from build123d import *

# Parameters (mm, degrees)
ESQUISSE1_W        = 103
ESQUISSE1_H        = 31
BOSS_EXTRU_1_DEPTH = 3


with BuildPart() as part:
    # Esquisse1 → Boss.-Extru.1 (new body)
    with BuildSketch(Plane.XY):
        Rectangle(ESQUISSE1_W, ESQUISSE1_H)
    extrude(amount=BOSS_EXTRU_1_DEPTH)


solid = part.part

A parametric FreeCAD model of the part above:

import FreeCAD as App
import Part
import Sketcher
Q = App.Units.Quantity

doc = App.newDocument("Part")
body = doc.addObject("PartDesign::Body", "Body")

# Sketch on XY plane
sketch1 = body.newObject("Sketcher::SketchObject", "Sketch")
sketch1.AttachmentSupport = (doc.getObject("XY_Plane"), [""])
sketch1.MapMode = "FlatFace"
sketch1.addGeometry([
    Part.LineSegment(App.Vector(-52, 16, 0), App.Vector(-52, -16, 0)),
    Part.LineSegment(App.Vector(-52, -16, 0), App.Vector(52, -16, 0)),
    Part.LineSegment(App.Vector(52, -16, 0), App.Vector(52, 16, 0)),
    Part.LineSegment(App.Vector(52, 16, 0), App.Vector(-52, 16, 0)),
], False)
sketch1.addConstraint([
    Sketcher.Constraint("Coincident", 0, 2, 1, 1),
    Sketcher.Constraint("Coincident", 1, 2, 2, 1),
    Sketcher.Constraint("Coincident", 2, 2, 3, 1),
    Sketcher.Constraint("Coincident", 3, 2, 0, 1),
    Sketcher.Constraint("Vertical", 0),
    Sketcher.Constraint("Horizontal", 1),
    Sketcher.Constraint("Vertical", 2),
    Sketcher.Constraint("Horizontal", 3),
    Sketcher.Constraint("Symmetric", 0, 2, 2, 2, -1, 1),
    Sketcher.Constraint("DistanceX", 1, 1, 1, 2, Q("103 mm")),
    Sketcher.Constraint("DistanceY", 0, 2, 0, 1, Q("31 mm")),
])
pad1 = body.newObject("PartDesign::Pad", "Pad")
pad1.Profile = sketch1
pad1.Length = 3

doc.recompute()
